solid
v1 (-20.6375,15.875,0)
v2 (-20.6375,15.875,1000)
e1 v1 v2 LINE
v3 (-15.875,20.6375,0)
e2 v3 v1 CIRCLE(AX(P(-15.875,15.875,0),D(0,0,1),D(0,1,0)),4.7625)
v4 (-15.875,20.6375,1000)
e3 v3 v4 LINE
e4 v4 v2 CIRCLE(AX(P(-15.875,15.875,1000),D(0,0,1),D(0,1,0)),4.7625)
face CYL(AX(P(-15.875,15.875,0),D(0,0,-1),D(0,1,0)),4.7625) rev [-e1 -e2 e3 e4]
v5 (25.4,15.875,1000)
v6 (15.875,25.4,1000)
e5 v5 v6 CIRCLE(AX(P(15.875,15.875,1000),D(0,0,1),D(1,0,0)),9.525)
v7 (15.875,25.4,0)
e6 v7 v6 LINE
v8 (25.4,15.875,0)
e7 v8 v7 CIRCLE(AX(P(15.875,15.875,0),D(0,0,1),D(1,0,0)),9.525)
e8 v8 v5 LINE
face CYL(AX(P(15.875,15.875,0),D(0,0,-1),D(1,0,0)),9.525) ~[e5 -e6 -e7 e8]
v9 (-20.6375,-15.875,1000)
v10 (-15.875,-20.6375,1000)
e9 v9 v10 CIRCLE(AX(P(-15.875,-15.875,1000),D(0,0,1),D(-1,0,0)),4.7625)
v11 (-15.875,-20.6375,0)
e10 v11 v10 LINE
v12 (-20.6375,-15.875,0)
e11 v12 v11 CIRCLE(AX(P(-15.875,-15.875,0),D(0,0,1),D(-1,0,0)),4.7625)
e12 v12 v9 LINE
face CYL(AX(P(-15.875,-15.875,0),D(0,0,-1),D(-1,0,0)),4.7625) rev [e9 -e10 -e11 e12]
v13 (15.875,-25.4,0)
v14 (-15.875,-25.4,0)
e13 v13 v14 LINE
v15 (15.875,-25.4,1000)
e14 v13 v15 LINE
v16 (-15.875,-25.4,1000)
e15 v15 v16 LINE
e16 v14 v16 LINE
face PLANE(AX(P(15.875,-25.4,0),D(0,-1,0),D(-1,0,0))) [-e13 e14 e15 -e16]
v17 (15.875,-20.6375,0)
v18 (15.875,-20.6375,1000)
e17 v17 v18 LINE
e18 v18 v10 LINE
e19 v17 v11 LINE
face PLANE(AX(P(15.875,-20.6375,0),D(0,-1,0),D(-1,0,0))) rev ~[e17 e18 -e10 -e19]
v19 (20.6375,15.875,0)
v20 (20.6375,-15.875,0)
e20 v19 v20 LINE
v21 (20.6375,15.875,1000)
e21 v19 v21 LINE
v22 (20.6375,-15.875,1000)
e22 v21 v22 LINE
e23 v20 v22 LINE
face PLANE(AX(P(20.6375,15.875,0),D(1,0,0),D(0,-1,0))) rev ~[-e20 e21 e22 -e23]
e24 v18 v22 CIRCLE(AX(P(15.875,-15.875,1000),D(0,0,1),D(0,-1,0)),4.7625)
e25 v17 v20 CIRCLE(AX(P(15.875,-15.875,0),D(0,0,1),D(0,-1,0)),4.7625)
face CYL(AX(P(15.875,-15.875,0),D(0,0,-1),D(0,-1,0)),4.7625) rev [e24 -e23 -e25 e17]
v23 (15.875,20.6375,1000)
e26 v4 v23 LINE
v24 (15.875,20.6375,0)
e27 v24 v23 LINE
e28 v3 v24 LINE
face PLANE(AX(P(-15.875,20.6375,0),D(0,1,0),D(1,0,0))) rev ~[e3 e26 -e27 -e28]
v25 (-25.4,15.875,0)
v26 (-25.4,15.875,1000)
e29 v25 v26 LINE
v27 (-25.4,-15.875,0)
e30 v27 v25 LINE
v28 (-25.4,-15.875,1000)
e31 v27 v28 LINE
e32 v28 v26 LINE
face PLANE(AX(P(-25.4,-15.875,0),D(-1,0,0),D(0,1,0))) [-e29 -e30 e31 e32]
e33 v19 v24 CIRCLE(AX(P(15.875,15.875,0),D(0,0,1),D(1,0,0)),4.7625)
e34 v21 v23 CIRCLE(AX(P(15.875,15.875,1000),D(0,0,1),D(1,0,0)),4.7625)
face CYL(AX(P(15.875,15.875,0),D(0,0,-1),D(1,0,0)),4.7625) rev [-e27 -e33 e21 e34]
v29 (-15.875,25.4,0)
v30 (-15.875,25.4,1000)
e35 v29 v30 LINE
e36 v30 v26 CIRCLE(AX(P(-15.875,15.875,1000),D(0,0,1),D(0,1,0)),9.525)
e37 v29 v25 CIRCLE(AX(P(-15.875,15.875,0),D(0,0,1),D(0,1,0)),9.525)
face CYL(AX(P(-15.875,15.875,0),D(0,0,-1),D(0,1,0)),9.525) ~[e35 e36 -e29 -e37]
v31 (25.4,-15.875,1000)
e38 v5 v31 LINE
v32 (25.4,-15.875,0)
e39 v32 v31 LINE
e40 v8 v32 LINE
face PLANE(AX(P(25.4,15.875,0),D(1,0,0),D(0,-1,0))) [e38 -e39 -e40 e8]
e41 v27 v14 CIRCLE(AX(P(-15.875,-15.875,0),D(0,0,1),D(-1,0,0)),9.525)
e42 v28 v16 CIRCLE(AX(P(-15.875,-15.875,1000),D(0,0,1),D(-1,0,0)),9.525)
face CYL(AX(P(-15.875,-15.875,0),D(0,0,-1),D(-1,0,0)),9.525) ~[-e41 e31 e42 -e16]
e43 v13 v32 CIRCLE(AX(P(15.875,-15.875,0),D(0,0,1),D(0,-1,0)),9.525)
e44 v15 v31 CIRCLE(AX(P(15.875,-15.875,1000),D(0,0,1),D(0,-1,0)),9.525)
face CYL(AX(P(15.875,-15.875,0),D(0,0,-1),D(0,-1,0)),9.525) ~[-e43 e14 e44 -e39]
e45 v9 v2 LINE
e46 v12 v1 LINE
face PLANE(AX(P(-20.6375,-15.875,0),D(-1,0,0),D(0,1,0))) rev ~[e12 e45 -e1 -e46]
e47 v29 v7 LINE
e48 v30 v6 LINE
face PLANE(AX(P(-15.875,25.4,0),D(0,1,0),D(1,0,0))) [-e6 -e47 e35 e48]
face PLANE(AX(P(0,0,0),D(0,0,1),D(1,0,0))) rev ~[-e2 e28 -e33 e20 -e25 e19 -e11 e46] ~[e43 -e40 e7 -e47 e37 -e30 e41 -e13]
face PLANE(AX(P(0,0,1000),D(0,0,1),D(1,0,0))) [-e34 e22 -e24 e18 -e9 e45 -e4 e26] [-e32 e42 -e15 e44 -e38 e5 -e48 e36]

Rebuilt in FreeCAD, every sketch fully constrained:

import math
import FreeCAD as App
import Part
import Sketcher
Q = App.Units.Quantity

doc = App.newDocument("Part")
body = doc.addObject("PartDesign::Body", "Body")

sketch1 = body.newObject("Sketcher::SketchObject", "Sketch")
sketch1.AttachmentSupport = (doc.getObject("XY_Plane"), [""])
sketch1.MapMode = "FlatFace"
sketch1.addGeometry([
    Part.LineSegment(App.Vector(-25.4, 15.9, 0), App.Vector(-25.4, -15.9, 0)),
    Part.ArcOfCircle(Part.Circle(App.Vector(-15.9, -15.9, 0), App.Vector(0, 0, 1), 9.5), math.radians(180), math.radians(270)),
    Part.LineSegment(App.Vector(-15.9, -25.4, 0), App.Vector(15.9, -25.4, 0)),
    Part.ArcOfCircle(Part.Circle(App.Vector(15.9, -15.9, 0), App.Vector(0, 0, 1), 9.5), math.radians(-90), math.radians(0)),
    Part.LineSegment(App.Vector(25.4, -15.9, 0), App.Vector(25.4, 15.9, 0)),
    Part.ArcOfCircle(Part.Circle(App.Vector(15.9, 15.9, 0), App.Vector(0, 0, 1), 9.5), math.radians(0), math.radians(90)),
    Part.LineSegment(App.Vector(15.9, 25.4, 0), App.Vector(-15.9, 25.4, 0)),
    Part.ArcOfCircle(Part.Circle(App.Vector(-15.9, 15.9, 0), App.Vector(0, 0, 1), 9.5), math.radians(90), math.radians(180)),
    Part.ArcOfCircle(Part.Circle(App.Vector(-15.9, 15.9, 0), App.Vector(0, 0, 1), 4.8), math.radians(90), math.radians(180)),
    Part.LineSegment(App.Vector(-15.9, 20.6, 0), App.Vector(15.9, 20.6, 0)),
    Part.ArcOfCircle(Part.Circle(App.Vector(15.9, 15.9, 0), App.Vector(0, 0, 1), 4.8), math.radians(0), math.radians(90)),
    Part.LineSegment(App.Vector(20.6, 15.9, 0), App.Vector(20.6, -15.9, 0)),
    Part.ArcOfCircle(Part.Circle(App.Vector(15.9, -15.9, 0), App.Vector(0, 0, 1), 4.8), math.radians(-90), math.radians(0)),
    Part.LineSegment(App.Vector(15.9, -20.6, 0), App.Vector(-15.9, -20.6, 0)),
    Part.ArcOfCircle(Part.Circle(App.Vector(-15.9, -15.9, 0), App.Vector(0, 0, 1), 4.8), math.radians(180), math.radians(270)),
    Part.LineSegment(App.Vector(-20.6, -15.9, 0), App.Vector(-20.6, 15.9, 0)),
], False)
sketch1.addConstraint([
    Sketcher.Constraint("Tangent", 0, 2, 1, 1),
    Sketcher.Constraint("Tangent", 1, 2, 2, 1),
    Sketcher.Constraint("Tangent", 2, 2, 3, 1),
    Sketcher.Constraint("Tangent", 3, 2, 4, 1),
    Sketcher.Constraint("Tangent", 4, 2, 5, 1),
    Sketcher.Constraint("Tangent", 5, 2, 6, 1),
    Sketcher.Constraint("Tangent", 6, 2, 7, 1),
    Sketcher.Constraint("Tangent", 7, 2, 0, 1),
    Sketcher.Constraint("Tangent", 8, 1, 9, 1),
    Sketcher.Constraint("Tangent", 9, 2, 10, 2),
    Sketcher.Constraint("Tangent", 10, 1, 11, 1),
    Sketcher.Constraint("Tangent", 11, 2, 12, 2),
    Sketcher.Constraint("Tangent", 12, 1, 13, 1),
    Sketcher.Constraint("Tangent", 13, 2, 14, 2),
    Sketcher.Constraint("Tangent", 14, 1, 15, 1),
    Sketcher.Constraint("Tangent", 15, 2, 8, 2),
    Sketcher.Constraint("Vertical", 0),
    Sketcher.Constraint("Horizontal", 2),
    Sketcher.Constraint("Vertical", 4),
    Sketcher.Constraint("Horizontal", 6),
    Sketcher.Constraint("Horizontal", 9),
    Sketcher.Constraint("Vertical", 11),
    Sketcher.Constraint("Horizontal", 13),
    Sketcher.Constraint("Vertical", 15),
    Sketcher.Constraint("Coincident", 8, 3, 7, 3),
    Sketcher.Constraint("Coincident", 10, 3, 5, 3),
    Sketcher.Constraint("Coincident", 12, 3, 3, 3),
    Sketcher.Constraint("Equal", 1, 3),
    Sketcher.Constraint("Equal", 3, 5),
    Sketcher.Constraint("Equal", 5, 7),
    Sketcher.Constraint("Equal", 12, 14),
    Sketcher.Constraint("Symmetric", 1, 3, 5, 3, -1, 1),
    Sketcher.Constraint("Equal", 13, 0),
    Sketcher.Constraint("DistanceX", 0, 2, -1, 1, Q("1 in")),
    Sketcher.Constraint("Radius", 1, Q("0.375 in")),
    Sketcher.Constraint("Radius", 8, Q("0.1875 in")),
])
pad1 = body.newObject("PartDesign::Pad", "Pad")
pad1.Profile = sketch1
pad1.Length = 1000

doc.recompute()
